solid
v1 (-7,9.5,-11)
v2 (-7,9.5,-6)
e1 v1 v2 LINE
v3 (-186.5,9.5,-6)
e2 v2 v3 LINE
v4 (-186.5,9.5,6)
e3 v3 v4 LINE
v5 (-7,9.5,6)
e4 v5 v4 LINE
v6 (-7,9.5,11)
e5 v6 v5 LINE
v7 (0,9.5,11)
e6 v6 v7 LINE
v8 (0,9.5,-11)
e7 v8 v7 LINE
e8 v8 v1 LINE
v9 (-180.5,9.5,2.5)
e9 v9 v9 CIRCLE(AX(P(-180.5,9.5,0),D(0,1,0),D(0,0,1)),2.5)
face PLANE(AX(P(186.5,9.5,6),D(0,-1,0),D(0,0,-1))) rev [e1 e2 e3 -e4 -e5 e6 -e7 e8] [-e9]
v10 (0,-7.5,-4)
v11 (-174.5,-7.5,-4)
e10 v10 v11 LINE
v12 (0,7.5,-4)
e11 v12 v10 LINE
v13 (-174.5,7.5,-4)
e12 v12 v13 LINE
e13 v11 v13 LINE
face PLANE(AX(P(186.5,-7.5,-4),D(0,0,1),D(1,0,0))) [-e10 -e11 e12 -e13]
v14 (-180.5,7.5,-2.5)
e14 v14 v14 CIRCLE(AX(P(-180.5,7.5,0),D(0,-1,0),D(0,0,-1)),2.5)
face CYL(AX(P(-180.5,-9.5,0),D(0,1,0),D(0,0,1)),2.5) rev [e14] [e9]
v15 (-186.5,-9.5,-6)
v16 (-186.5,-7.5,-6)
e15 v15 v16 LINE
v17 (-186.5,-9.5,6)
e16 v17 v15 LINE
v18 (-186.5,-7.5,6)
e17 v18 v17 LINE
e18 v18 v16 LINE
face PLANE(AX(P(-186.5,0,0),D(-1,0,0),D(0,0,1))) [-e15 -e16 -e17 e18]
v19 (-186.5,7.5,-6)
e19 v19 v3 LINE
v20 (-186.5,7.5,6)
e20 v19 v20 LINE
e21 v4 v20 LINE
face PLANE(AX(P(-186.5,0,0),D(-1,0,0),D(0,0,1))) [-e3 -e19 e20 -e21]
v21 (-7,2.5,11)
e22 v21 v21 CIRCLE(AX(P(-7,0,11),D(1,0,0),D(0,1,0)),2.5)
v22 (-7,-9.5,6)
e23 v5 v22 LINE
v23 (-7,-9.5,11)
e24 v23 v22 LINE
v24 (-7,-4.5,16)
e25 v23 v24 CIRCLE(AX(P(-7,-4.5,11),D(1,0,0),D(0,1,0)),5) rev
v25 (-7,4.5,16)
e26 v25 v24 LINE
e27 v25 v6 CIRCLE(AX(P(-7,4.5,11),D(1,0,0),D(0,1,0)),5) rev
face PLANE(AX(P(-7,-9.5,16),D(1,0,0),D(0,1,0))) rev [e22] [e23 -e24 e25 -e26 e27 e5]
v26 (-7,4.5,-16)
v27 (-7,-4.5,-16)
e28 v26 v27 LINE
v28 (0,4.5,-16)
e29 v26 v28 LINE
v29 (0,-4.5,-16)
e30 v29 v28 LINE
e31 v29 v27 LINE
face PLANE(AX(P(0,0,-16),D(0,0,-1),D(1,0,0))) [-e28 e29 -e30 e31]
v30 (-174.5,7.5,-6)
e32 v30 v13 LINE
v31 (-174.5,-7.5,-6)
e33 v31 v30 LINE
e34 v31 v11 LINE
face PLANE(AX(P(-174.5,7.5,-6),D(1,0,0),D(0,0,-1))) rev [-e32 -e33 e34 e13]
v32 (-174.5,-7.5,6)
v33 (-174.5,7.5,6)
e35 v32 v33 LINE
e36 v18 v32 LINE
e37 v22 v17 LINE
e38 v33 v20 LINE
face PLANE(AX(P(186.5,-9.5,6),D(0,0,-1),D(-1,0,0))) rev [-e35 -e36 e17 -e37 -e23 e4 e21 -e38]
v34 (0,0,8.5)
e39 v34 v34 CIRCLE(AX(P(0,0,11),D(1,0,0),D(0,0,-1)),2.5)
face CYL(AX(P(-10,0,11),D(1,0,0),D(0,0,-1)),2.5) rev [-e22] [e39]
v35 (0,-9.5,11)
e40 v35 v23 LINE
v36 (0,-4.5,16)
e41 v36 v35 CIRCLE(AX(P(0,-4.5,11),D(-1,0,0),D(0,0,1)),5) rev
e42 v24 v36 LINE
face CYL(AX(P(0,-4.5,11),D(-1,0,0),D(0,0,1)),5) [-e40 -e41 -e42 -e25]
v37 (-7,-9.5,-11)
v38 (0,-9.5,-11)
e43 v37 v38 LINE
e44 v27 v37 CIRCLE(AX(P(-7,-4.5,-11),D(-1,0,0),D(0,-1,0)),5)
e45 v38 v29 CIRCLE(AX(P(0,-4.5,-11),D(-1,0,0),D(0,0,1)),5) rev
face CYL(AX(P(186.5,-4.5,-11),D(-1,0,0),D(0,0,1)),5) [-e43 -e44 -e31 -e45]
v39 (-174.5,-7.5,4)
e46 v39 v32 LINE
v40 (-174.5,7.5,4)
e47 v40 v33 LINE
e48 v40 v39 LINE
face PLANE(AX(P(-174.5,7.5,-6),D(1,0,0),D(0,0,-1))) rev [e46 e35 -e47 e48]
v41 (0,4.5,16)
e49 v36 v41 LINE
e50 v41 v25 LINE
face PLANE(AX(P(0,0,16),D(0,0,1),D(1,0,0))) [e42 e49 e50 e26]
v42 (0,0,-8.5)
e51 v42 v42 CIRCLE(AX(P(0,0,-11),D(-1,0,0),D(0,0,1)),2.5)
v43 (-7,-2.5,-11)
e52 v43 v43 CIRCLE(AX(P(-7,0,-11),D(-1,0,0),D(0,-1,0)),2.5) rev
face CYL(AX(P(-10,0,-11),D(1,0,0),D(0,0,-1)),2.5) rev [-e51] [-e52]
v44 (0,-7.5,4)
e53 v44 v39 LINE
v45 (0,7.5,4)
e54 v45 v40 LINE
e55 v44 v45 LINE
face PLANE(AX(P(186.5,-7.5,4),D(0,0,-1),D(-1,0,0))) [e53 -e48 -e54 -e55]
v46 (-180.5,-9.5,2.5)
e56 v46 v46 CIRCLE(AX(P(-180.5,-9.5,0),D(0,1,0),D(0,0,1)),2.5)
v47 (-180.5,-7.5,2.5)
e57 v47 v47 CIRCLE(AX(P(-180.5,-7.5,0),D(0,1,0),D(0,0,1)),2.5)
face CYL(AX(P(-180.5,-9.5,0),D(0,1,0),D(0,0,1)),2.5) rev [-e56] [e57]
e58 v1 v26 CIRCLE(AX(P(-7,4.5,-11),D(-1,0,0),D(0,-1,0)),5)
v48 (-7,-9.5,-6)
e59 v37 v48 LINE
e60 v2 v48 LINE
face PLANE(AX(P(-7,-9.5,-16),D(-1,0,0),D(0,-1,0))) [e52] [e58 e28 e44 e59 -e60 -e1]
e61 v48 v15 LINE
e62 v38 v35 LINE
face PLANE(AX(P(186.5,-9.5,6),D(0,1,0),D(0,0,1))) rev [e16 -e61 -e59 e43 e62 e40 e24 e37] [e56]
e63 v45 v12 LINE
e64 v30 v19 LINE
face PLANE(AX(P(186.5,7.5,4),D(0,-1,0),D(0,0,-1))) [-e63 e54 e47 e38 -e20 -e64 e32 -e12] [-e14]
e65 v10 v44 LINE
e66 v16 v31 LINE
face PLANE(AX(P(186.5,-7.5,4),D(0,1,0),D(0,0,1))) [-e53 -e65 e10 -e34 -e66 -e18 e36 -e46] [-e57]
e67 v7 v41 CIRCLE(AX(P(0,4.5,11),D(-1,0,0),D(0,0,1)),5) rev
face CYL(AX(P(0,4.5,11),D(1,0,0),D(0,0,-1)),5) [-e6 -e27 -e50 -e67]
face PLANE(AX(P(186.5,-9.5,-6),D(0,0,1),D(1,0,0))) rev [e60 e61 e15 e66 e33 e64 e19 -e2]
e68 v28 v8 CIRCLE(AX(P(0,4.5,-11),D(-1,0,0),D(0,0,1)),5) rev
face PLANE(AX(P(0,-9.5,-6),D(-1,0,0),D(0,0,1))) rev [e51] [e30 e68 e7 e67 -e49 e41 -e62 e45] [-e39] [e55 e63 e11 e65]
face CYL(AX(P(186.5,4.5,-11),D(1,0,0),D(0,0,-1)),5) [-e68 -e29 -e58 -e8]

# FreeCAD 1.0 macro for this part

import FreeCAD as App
import Part
import Sketcher
Q = App.Units.Quantity


def edges_at(feature, points):
    """Names of the edges that pass closest to the given points."""
    edges = feature.Shape.Edges
    near = lambda p: min(range(len(edges)), key=lambda i: edges[i].distToShape(Part.Vertex(*p))[0])
    return sorted({f"Edge{near(p) + 1}" for p in points})


def add_polygon(sketch, points):
    """Adds a closed chain of lines whose ends are joined by coincident constraints."""
    first, n = sketch.GeometryCount, len(points)
    for a, b in zip(points, points[1:] + points[:1]):
        sketch.addGeometry(Part.LineSegment(App.Vector(*a, 0), App.Vector(*b, 0)), False)
    for i in range(n):
        sketch.addConstraint(Sketcher.Constraint("Coincident", first + i, 2, first + (i + 1) % n, 1))

doc = App.newDocument("Part")
body = doc.addObject("PartDesign::Body", "Body")

# Sketch on YZ plane
sketch1 = body.newObject("Sketcher::SketchObject", "Sketch")
sketch1.AttachmentSupport = (doc.getObject("YZ_Plane"), [""])
sketch1.MapMode = "FlatFace"
add_polygon(sketch1, [(10, 6), (-10, 6), (-10, -6), (10, -6)])  # lines 0-3
add_polygon(sketch1, [(-8, -4), (-8, 4), (8, 4), (8, -4)])  # lines 4-7
sketch1.addConstraint(Sketcher.Constraint("Horizontal", 0))
sketch1.addConstraint(Sketcher.Constraint("Vertical", 1))
sketch1.addConstraint(Sketcher.Constraint("Horizontal", 2))
sketch1.addConstraint(Sketcher.Constraint("Vertical", 3))
sketch1.addConstraint(Sketcher.Constraint("Vertical", 4))
sketch1.addConstraint(Sketcher.Constraint("Horizontal", 5))
sketch1.addConstraint(Sketcher.Constraint("Vertical", 6))
sketch1.addConstraint(Sketcher.Constraint("Horizontal", 7))
sketch1.addConstraint(Sketcher.Constraint("Symmetric", 0, 2, 2, 2, -1, 1))
sketch1.addConstraint(Sketcher.Constraint("Symmetric", 4, 2, 6, 2, -1, 1))
sketch1.addConstraint(Sketcher.Constraint("DistanceX", 0, 2, 0, 1, Q("19 mm")))
sketch1.addConstraint(Sketcher.Constraint("DistanceX", 5, 1, 5, 2, Q("15 mm")))
sketch1.addConstraint(Sketcher.Constraint("DistanceY", 1, 2, 1, 1, Q("12 mm")))
sketch1.addConstraint(Sketcher.Constraint("DistanceY", 4, 1, 4, 2, Q("8 mm")))
pad1 = body.newObject("PartDesign::Pad", "Pad")
pad1.Profile = sketch1
pad1.Length = 373
pad1.Midplane = True

# Sketch on XY plane
sketch2 = body.newObject("Sketcher::SketchObject", "Sketch001")
sketch2.AttachmentSupport = (doc.getObject("XY_Plane"), [""])
sketch2.MapMode = "FlatFace"
sketch2.AttachmentOffset = App.Placement(App.Vector(0, 0, 6), App.Rotation())
add_polygon(sketch2, [(-186, 8), (-186, -8), (-174, -8), (-174, 8)])  # lines 0-3
add_polygon(sketch2, [(174, 8), (174, -8), (186, -8), (186, 8)])  # lines 4-7
sketch2.addConstraint(Sketcher.Constraint("Vertical", 0))
sketch2.addConstraint(Sketcher.Constraint("Horizontal", 1))
sketch2.addConstraint(Sketcher.Constraint("Vertical", 2))
sketch2.addConstraint(Sketcher.Constraint("Horizontal", 3))
sketch2.addConstraint(Sketcher.Constraint("Vertical", 4))
sketch2.addConstraint(Sketcher.Constraint("Horizontal", 5))
sketch2.addConstraint(Sketcher.Constraint("Vertical", 6))
sketch2.addConstraint(Sketcher.Constraint("Horizontal", 7))
sketch2.addConstraint(Sketcher.Constraint("Symmetric", 2, 2, 4, 2, -1, 1))
sketch2.addConstraint(Sketcher.Constraint("Symmetric", 0, 2, 6, 2, -1, 1))
sketch2.addConstraint(Sketcher.Constraint("Horizontal", 1, 2, 4, 2))
sketch2.addConstraint(Sketcher.Constraint("DistanceX", 1, 1, 1, 2, Q("12 mm")))
sketch2.addConstraint(Sketcher.Constraint("DistanceY", 0, 2, 0, 1, Q("15 mm")))
sketch2.addConstraint(Sketcher.Constraint("DistanceX", 1, 2, 4, 2, Q("349 mm")))
pocket1 = body.newObject("PartDesign::Pocket", "Pocket")
pocket1.Profile = sketch2
pocket1.Length = 12

# Sketch on XZ plane
sketch3 = body.newObject("Sketcher::SketchObject", "Sketch002")
sketch3.AttachmentSupport = (doc.getObject("XZ_Plane"), [""])
sketch3.MapMode = "FlatFace"
sketch3.AttachmentOffset = App.Placement(App.Vector(0, 0, -9.5), App.Rotation())
sketch3.addGeometry(Part.Circle(App.Vector(-180.5, 0, 0), App.Vector(0, 0, 1), 2.5), False)
sketch3.addGeometry(Part.Circle(App.Vector(180.5, 0, 0), App.Vector(0, 0, 1), 2.5), False)
sketch3.addConstraint(Sketcher.Constraint("Equal", 0, 1))
sketch3.addConstraint(Sketcher.Constraint("Symmetric", 0, 3, 1, 3, -1, 1))
sketch3.addConstraint(Sketcher.Constraint("PointOnObject", 0, 3, -1))
sketch3.addConstraint(Sketcher.Constraint("Diameter", 0, Q("5 mm")))
sketch3.addConstraint(Sketcher.Constraint("DistanceX", 0, 3, 1, 3, Q("361 mm")))
pocket2 = body.newObject("PartDesign::Pocket", "Pocket001")
pocket2.Profile = sketch3
pocket2.Length = 19
pocket2.Reversed = True

# Sketch on XY plane
sketch4 = body.newObject("Sketcher::SketchObject", "Sketch003")
sketch4.AttachmentSupport = (doc.getObject("XY_Plane"), [""])
sketch4.MapMode = "FlatFace"
sketch4.AttachmentOffset = App.Placement(App.Vector(0, 0, 6), App.Rotation())
add_polygon(sketch4, [(0, 10), (0, -10), (186, -10), (186, 10)])  # lines 0-3
sketch4.addConstraint(Sketcher.Constraint("Vertical", 0))
sketch4.addConstraint(Sketcher.Constraint("Horizontal", 1))
sketch4.addConstraint(Sketcher.Constraint("Vertical", 2))
sketch4.addConstraint(Sketcher.Constraint("Horizontal", 3))
sketch4.addConstraint(Sketcher.Constraint("Symmetric", 0, 2, 3, 2, -1, 1))
sketch4.addConstraint(Sketcher.Constraint("DistanceY", 0, 2, 0, 1, Q("19 mm")))
sketch4.addConstraint(Sketcher.Constraint("DistanceX", 1, 1, 1, 2, Q("186.5 mm")))
pocket3 = body.newObject("PartDesign::Pocket", "Pocket002")
pocket3.Profile = sketch4
pocket3.Type = "ThroughAll"

# Sketch on XY plane
sketch5 = body.newObject("Sketcher::SketchObject", "Sketch004")
sketch5.AttachmentSupport = (doc.getObject("XY_Plane"), [""])
sketch5.MapMode = "FlatFace"
sketch5.AttachmentOffset = App.Placement(App.Vector(0, 0, 6), App.Rotation())
add_polygon(sketch5, [(-7, 10), (-7, -10), (0, -10), (0, 10)])  # lines 0-3
sketch5.addConstraint(Sketcher.Constraint("Vertical", 0))
sketch5.addConstraint(Sketcher.Constraint("Horizontal", 1))
sketch5.addConstraint(Sketcher.Constraint("Vertical", 2))
sketch5.addConstraint(Sketcher.Constraint("Horizontal", 3))
sketch5.addConstraint(Sketcher.Constraint("Symmetric", 1, 2, 2, 2, -1, 1))
sketch5.addConstraint(Sketcher.Constraint("DistanceX", 1, 1, 1, 2, Q("7 mm")))
sketch5.addConstraint(Sketcher.Constraint("DistanceY", 0, 2, 0, 1, Q("19 mm")))
pad2 = body.newObject("PartDesign::Pad", "Pad001")
pad2.Profile = sketch5
pad2.Length = 10

# Sketch on YZ plane
sketch6 = body.newObject("Sketcher::SketchObject", "Sketch005")
sketch6.AttachmentSupport = (doc.getObject("YZ_Plane"), [""])
sketch6.MapMode = "FlatFace"
sketch6.addGeometry(Part.Circle(App.Vector(0, 11, 0), App.Vector(0, 0, 1), 2.5), False)
sketch6.addConstraint(Sketcher.Constraint("PointOnObject", 0, 3, -2))
sketch6.addConstraint(Sketcher.Constraint("Diameter", 0, Q("5 mm")))
sketch6.addConstraint(Sketcher.Constraint("DistanceY", -1, 1, 0, 3, Q("11 mm")))
pocket4 = body.newObject("PartDesign::Pocket", "Pocket003")
pocket4.Profile = sketch6
pocket4.Length = 10
doc.recompute()

fillet = body.newObject("PartDesign::Fillet", "Fillet")
fillet.Base = (pocket4, edges_at(pocket4, [(-3.5, 9.5, 16), (-3.5, -9.5, 16)]))
fillet.Radius = 5
doc.recompute()

mirrored = body.newObject("PartDesign::Mirrored", "Mirrored")
mirrored.Originals = [pad2, pocket4]
mirrored.MirrorPlane = (doc.getObject("XY_Plane"), [""])
body.Tip = mirrored
doc.recompute()

fillet2 = body.newObject("PartDesign::Fillet", "Fillet001")
fillet2.Base = (mirrored, edges_at(mirrored, [(-3.5, -9.5, -16), (-3.5, 9.5, -16)]))
fillet2.Radius = 5

doc.recompute()
